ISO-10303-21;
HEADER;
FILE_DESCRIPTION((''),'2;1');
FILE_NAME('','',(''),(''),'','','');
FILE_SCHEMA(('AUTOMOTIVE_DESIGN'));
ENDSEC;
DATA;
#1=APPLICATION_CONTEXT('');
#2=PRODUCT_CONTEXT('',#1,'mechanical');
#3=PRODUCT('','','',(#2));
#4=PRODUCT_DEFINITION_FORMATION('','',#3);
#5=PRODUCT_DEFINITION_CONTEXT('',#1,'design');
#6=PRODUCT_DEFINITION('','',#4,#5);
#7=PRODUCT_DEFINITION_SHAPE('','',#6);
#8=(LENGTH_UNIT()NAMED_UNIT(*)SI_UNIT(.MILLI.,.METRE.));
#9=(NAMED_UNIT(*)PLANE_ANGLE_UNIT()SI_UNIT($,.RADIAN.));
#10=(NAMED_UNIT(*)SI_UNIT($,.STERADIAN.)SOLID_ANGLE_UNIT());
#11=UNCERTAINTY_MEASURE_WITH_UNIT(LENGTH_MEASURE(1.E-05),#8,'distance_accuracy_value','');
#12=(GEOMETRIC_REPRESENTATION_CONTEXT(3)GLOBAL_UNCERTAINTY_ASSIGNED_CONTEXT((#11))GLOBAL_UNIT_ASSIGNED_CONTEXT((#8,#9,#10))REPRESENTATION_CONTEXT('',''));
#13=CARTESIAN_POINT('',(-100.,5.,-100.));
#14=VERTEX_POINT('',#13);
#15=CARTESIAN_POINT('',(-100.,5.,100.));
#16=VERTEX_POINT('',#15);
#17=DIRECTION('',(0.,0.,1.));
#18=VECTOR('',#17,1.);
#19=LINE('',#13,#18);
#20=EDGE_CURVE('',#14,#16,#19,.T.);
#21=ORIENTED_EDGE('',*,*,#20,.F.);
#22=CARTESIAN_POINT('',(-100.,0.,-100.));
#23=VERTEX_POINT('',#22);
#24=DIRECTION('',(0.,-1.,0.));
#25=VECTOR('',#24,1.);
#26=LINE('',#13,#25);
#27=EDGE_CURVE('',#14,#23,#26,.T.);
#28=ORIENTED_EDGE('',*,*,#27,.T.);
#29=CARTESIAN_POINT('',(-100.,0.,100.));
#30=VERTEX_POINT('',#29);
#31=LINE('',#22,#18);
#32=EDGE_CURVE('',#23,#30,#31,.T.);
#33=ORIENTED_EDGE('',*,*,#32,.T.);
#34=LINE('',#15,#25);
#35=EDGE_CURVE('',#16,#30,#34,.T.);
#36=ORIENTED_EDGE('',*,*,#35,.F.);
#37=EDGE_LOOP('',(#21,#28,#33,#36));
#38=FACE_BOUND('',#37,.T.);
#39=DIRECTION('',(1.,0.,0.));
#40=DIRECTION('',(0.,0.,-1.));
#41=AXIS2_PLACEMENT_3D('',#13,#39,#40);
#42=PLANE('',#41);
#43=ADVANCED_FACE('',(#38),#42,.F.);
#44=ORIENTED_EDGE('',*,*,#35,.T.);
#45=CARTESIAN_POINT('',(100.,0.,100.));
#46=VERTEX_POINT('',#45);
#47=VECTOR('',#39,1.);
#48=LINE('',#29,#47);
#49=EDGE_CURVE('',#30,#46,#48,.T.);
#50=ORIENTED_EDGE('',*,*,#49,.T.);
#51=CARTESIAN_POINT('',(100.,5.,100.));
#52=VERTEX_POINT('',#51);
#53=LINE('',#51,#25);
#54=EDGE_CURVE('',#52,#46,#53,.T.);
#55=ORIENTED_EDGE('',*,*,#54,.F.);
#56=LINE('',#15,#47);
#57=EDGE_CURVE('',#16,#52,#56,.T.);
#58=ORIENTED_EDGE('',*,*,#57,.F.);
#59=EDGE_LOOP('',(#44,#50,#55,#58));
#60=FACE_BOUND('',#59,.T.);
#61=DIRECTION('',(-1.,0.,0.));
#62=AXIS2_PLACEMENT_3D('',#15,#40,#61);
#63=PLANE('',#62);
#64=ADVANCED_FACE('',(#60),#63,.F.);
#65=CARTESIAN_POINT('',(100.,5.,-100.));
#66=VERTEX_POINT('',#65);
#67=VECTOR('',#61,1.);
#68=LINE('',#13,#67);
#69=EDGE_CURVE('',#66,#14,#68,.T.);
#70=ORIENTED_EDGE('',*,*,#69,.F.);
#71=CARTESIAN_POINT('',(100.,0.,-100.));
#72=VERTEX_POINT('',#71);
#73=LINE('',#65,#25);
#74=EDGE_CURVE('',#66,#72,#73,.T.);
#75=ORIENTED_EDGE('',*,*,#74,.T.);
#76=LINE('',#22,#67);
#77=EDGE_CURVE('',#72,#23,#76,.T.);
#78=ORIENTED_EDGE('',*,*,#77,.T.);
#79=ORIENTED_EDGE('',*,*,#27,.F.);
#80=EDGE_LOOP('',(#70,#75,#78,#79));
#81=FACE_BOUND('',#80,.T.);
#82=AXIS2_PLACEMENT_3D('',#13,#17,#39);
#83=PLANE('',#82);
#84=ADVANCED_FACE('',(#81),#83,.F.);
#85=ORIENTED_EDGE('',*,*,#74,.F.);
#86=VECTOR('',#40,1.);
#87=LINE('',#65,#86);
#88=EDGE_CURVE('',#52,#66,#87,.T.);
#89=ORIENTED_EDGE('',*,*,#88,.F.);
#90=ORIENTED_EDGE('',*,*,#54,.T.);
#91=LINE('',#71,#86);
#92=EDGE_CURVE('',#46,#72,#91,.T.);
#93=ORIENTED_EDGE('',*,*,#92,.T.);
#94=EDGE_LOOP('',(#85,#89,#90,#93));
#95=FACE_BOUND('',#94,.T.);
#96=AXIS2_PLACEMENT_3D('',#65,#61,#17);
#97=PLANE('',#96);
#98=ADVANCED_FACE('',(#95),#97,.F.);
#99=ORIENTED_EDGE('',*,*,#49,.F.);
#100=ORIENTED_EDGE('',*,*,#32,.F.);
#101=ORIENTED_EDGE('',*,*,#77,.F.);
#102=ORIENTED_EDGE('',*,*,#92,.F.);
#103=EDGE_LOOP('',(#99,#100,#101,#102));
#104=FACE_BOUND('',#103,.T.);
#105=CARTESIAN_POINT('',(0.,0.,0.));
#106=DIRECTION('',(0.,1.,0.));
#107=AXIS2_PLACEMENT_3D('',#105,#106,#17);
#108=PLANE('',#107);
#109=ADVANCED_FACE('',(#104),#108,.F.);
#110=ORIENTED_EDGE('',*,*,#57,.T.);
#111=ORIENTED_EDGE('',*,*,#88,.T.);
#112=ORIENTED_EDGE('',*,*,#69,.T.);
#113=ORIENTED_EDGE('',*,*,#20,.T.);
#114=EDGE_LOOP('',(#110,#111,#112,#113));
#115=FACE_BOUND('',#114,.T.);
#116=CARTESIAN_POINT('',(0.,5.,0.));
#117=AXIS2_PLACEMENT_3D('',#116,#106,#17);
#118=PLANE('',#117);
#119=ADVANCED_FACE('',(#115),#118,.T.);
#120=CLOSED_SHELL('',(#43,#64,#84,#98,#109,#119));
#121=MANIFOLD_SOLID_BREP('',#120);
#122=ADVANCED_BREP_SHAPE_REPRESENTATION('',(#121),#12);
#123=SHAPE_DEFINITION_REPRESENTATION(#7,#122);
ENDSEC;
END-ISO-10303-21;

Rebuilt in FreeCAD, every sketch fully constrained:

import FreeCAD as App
import Part
import Sketcher
Q = App.Units.Quantity

doc = App.newDocument("Part")
body = doc.addObject("PartDesign::Body", "Body")

sketch1 = body.newObject("Sketcher::SketchObject", "Sketch")
sketch1.AttachmentSupport = (doc.getObject("XZ_Plane"), [""])
sketch1.MapMode = "FlatFace"
sketch1.addGeometry([
    Part.LineSegment(App.Vector(-100, -100, 0), App.Vector(-100, 100, 0)),
    Part.LineSegment(App.Vector(-100, 100, 0), App.Vector(100, 100, 0)),
    Part.LineSegment(App.Vector(100, 100, 0), App.Vector(100, -100, 0)),
    Part.LineSegment(App.Vector(100, -100, 0), App.Vector(-100, -100, 0)),
], False)
sketch1.addConstraint([
    Sketcher.Constraint("Coincident", 0, 2, 1, 1),
    Sketcher.Constraint("Coincident", 1, 2, 2, 1),
    Sketcher.Constraint("Coincident", 2, 2, 3, 1),
    Sketcher.Constraint("Coincident", 3, 2, 0, 1),
    Sketcher.Constraint("Vertical", 0),
    Sketcher.Constraint("Horizontal", 1),
    Sketcher.Constraint("Vertical", 2),
    Sketcher.Constraint("Horizontal", 3),
    Sketcher.Constraint("Symmetric", 0, 2, 2, 2, -1, 1),
    Sketcher.Constraint("Equal", 3, 0),
    Sketcher.Constraint("DistanceX", 1, 1, 1, 2, Q("200 mm")),
])
pad1 = body.newObject("PartDesign::Pad", "Pad")
pad1.Profile = sketch1
pad1.Length = 5
pad1.Reversed = True

doc.recompute()
